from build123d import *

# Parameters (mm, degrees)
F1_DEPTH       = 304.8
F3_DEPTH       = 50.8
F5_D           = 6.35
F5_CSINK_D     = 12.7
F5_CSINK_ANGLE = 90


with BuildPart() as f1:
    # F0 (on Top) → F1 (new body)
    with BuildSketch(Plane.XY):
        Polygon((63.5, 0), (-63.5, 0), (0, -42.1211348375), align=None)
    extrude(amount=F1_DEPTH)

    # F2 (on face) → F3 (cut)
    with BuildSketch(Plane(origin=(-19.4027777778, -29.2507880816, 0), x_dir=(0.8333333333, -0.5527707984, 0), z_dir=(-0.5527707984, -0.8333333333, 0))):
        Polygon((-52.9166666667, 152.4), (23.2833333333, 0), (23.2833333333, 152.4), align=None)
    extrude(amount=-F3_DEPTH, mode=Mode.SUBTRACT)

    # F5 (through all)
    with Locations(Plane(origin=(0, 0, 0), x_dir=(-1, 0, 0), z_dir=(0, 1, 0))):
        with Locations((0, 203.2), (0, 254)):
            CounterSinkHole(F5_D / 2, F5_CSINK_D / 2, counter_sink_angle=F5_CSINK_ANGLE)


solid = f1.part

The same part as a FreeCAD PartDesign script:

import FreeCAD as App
import Part
import Sketcher

V = App.Vector
Q = App.Units.Quantity


def add_polygon(sketch, points):
    """Adds a closed chain of lines whose ends are joined by coincident constraints."""
    first, n = sketch.GeometryCount, len(points)
    for a, b in zip(points, points[1:] + points[:1]):
        sketch.addGeometry(Part.LineSegment(App.Vector(*a, 0), App.Vector(*b, 0)), False)
    for i in range(n):
        sketch.addConstraint(Sketcher.Constraint("Coincident", first + i, 2, first + (i + 1) % n, 1))

doc = App.newDocument("Part")
body = doc.addObject("PartDesign::Body", "Body")
body.AllowCompound = True

# Sketch on XY plane
sketch1 = body.newObject("Sketcher::SketchObject", "Sketch")
sketch1.AttachmentSupport = (doc.getObject("XY_Plane"), [""])
sketch1.MapMode = "FlatFace"
add_polygon(sketch1, [(64, 0), (-64, 0), (0, -42)])  # lines 0-2
sketch1.addConstraint([
    Sketcher.Constraint("Horizontal", 0),
    Sketcher.Constraint("Symmetric", 0, 2, 2, 2, -1, 1),
    Sketcher.Constraint("PointOnObject", 1, 2, -2),
    Sketcher.Constraint("DistanceX", 0, 2, 0, 1, Q("5 in")),
    Sketcher.Constraint("Distance", 1, Q("3 in")),
])
pad1 = body.newObject("PartDesign::Pad", "Pad")
pad1.Profile = sketch1
pad1.Length = Q("12 in")

# Sketch on an angled plane
sketch2 = body.newObject("Sketcher::SketchObject", "Sketch001")
sketch2.Placement = App.Placement(V(-19.402778, -29.250788, 0), App.Rotation(V(0.833333333, -0.552770798, 0), V(0, 0, 0.999999999), V(-0.552770798, -0.833333333, 0), "ZXY"))
add_polygon(sketch2, [(-53, 152), (23, 0), (23, 152)])  # lines 0-2
sketch2.addConstraint([
    Sketcher.Constraint("Vertical", 1),
    Sketcher.Constraint("Horizontal", 2),
    Sketcher.Constraint("PointOnObject", 0, 2, -1),
    Sketcher.Constraint("DistanceX", 2, 2, 2, 1, Q("3 in")),
    Sketcher.Constraint("DistanceY", 1, 1, 1, 2, Q("6 in")),
    Sketcher.Constraint("DistanceX", -1, 1, 0, 2, Q("23.283333 mm")),
])
pocket1 = body.newObject("PartDesign::Pocket", "Pocket")
pocket1.Profile = sketch2
pocket1.Length = Q("2 in")

# Sketch on XZ plane
sketch3 = body.newObject("Sketcher::SketchObject", "Sketch002")
sketch3.AttachmentSupport = (doc.getObject("XZ_Plane"), [""])
sketch3.MapMode = "FlatFace"
sketch3.addGeometry([
    Part.Circle(V(0, 203.2, 0), V(0, 0, 1), 3.2),
    Part.Circle(V(0, 254, 0), V(0, 0, 1), 3.2),
], False)
sketch3.addConstraint([
    Sketcher.Constraint("Equal", 0, 1),
    Sketcher.Constraint("PointOnObject", 0, 3, -2),
    Sketcher.Constraint("PointOnObject", 1, 3, -2),
    Sketcher.Constraint("Diameter", 0, Q("0.25 in")),
    Sketcher.Constraint("DistanceY", -1, 1, 0, 3, Q("8 in")),
    Sketcher.Constraint("DistanceY", -1, 1, 1, 3, Q("10 in")),
])
doc.recompute()
hole = body.newObject("PartDesign::Hole", "Hole")
hole.Profile = sketch3
hole.ThreadType = "None"
hole.Diameter = Q("0.25 in")
hole.DepthType = "ThroughAll"
hole.HoleCutType = "Countersink"
hole.HoleCutDiameter = Q("0.5 in")
hole.HoleCutCountersinkAngle = 90
hole.Reversed = True

doc.recompute()
